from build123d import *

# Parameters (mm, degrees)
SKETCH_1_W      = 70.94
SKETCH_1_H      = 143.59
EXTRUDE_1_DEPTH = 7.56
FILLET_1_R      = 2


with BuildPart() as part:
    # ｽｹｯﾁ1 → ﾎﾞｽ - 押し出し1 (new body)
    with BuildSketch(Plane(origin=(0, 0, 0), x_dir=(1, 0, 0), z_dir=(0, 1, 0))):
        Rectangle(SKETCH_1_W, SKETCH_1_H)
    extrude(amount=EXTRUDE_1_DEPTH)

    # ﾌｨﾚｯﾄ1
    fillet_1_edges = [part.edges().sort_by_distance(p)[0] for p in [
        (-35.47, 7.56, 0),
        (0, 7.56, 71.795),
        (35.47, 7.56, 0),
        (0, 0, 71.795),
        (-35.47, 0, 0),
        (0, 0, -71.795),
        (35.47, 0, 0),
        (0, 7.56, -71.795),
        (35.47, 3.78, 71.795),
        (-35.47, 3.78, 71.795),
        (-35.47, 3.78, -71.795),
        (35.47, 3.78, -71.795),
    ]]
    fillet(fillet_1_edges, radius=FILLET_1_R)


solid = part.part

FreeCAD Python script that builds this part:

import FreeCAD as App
import Part
import Sketcher

V = App.Vector
Q = App.Units.Quantity

doc = App.newDocument("Part")
body = doc.addObject("PartDesign::Body", "Body")

# Sketch on XZ plane
sketch1 = body.newObject("Sketcher::SketchObject", "Sketch")
sketch1.AttachmentSupport = (doc.getObject("XZ_Plane"), [""])
sketch1.MapMode = "FlatFace"
sketch1.addGeometry([
    Part.LineSegment(V(-35, -72, 0), V(-35, 72, 0)),
    Part.LineSegment(V(-35, 72, 0), V(35, 72, 0)),
    Part.LineSegment(V(35, 72, 0), V(35, -72, 0)),
    Part.LineSegment(V(35, -72, 0), V(-35, -72, 0)),
], False)
sketch1.addConstraint([
    Sketcher.Constraint("Coincident", 0, 2, 1, 1),
    Sketcher.Constraint("Coincident", 1, 2, 2, 1),
    Sketcher.Constraint("Coincident", 2, 2, 3, 1),
    Sketcher.Constraint("Coincident", 3, 2, 0, 1),
    Sketcher.Constraint("Vertical", 0),
    Sketcher.Constraint("Horizontal", 1),
    Sketcher.Constraint("Vertical", 2),
    Sketcher.Constraint("Horizontal", 3),
    Sketcher.Constraint("Symmetric", 0, 2, 2, 2, -1, 1),
    Sketcher.Constraint("DistanceX", 1, 1, 1, 2, Q("70.94 mm")),
    Sketcher.Constraint("DistanceY", 0, 1, 0, 2, Q("143.59 mm")),
])
pad1 = body.newObject("PartDesign::Pad", "Pad")
pad1.Profile = sketch1
pad1.Length = 7.56
pad1.Reversed = True
doc.recompute()

fillet = body.newObject("PartDesign::Fillet", "Fillet")
fillet.Base = (pad1, ["Edge1"])
fillet.UseAllEdges = True
fillet.Radius = 2

doc.recompute()
